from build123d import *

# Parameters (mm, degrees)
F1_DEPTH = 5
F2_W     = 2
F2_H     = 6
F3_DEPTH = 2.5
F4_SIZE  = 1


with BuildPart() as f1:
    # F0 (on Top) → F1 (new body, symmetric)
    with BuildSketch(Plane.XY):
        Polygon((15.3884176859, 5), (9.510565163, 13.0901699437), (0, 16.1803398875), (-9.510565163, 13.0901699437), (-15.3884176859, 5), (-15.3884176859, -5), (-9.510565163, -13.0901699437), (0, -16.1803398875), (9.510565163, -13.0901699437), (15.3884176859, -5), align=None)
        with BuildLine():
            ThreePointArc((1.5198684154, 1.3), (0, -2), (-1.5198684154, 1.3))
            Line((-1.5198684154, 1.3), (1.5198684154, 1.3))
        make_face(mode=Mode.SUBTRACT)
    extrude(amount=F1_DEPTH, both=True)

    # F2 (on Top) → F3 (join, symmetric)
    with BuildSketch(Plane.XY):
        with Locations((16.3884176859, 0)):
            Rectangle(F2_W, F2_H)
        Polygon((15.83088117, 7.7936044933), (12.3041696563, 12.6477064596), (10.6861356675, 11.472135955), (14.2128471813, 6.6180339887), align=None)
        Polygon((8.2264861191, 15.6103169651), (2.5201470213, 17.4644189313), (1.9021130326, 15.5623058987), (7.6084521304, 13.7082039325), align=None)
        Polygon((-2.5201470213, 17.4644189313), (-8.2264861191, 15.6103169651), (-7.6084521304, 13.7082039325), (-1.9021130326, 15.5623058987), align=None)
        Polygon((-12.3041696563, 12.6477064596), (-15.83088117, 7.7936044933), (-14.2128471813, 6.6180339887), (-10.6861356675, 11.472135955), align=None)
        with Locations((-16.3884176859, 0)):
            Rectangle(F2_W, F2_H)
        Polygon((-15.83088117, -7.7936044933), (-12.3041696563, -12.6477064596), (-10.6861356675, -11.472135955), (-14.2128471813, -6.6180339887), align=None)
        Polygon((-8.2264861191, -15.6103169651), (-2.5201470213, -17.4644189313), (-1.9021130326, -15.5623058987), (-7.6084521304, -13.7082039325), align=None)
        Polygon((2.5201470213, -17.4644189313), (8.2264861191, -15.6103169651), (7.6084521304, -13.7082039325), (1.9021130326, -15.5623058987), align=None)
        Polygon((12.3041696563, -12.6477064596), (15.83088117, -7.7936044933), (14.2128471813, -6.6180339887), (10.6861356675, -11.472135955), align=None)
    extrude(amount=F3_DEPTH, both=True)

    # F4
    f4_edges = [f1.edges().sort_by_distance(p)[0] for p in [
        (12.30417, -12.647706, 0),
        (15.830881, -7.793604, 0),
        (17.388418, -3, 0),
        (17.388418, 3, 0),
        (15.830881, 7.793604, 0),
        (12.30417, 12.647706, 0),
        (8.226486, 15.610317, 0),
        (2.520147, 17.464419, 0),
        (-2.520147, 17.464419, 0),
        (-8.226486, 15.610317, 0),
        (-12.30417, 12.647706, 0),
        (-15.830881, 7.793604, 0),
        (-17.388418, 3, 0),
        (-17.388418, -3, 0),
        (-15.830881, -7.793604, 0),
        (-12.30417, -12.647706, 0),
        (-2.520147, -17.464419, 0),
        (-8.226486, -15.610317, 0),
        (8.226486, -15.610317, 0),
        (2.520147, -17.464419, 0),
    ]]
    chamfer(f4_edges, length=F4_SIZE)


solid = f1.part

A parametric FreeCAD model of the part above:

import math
import FreeCAD as App
import Part
import Sketcher

V = App.Vector
Q = App.Units.Quantity


def edges_at(feature, points):
    """Names of the edges that pass closest to the given points."""
    edges = feature.Shape.Edges
    near = lambda p: min(range(len(edges)), key=lambda i: edges[i].distToShape(Part.Vertex(*p))[0])
    return sorted({f"Edge{near(p) + 1}" for p in points})


def add_polygon(sketch, points):
    """Adds a closed chain of lines whose ends are joined by coincident constraints."""
    first, n = sketch.GeometryCount, len(points)
    for a, b in zip(points, points[1:] + points[:1]):
        sketch.addGeometry(Part.LineSegment(App.Vector(*a, 0), App.Vector(*b, 0)), False)
    for i in range(n):
        sketch.addConstraint(Sketcher.Constraint("Coincident", first + i, 2, first + (i + 1) % n, 1))

doc = App.newDocument("Part")
body = doc.addObject("PartDesign::Body", "Body")

sketch1 = body.newObject("Sketcher::SketchObject", "Sketch")
sketch1.AttachmentSupport = (doc.getObject("XY_Plane"), [""])
sketch1.MapMode = "FlatFace"
add_polygon(sketch1, [(15.4, 5), (9.5, 13.1), (0, 16.2), (-9.5, 13.1), (-15.4, 5), (-15.4, -5), (-9.5, -13.1), (0, -16.2), (9.5, -13.1), (15.4, -5)])
sketch1.addGeometry(Part.LineSegment(V(-1.5, 1.3, 0), V(1.5, 1.3, 0)), False)
sketch1.addGeometry(Part.ArcOfCircle(Part.Circle(V(0, 0, 0), V(0, 0, 1), 2), math.radians(139), math.radians(401)), False)
sketch1.addConstraint([
    Sketcher.Constraint("Coincident", 10, 1, 11, 1),
    Sketcher.Constraint("Coincident", 11, 2, 10, 2),
    Sketcher.Constraint("Vertical", 4),
    Sketcher.Constraint("Vertical", 9),
    Sketcher.Constraint("Horizontal", 10),
    Sketcher.Constraint("Coincident", 11, 3, -1, 1),
    Sketcher.Constraint("Symmetric", 0, 2, 5, 2, -1, 1),
    Sketcher.Constraint("Symmetric", 1, 2, 6, 2, -1, 1),
    Sketcher.Constraint("Symmetric", 2, 2, 7, 2, -1, 1),
    Sketcher.Constraint("Symmetric", 3, 2, 8, 2, -1, 1),
    Sketcher.Constraint("Symmetric", 0, 2, 2, 2, -2),
    Sketcher.Constraint("PointOnObject", 1, 2, -2),
    Sketcher.Constraint("Parallel", 0, 5),
    Sketcher.Constraint("Horizontal", 4, 2, 8, 2),
    Sketcher.Constraint("Equal", 0, 1),
    Sketcher.Constraint("Radius", 11, 2.0),
    Sketcher.Constraint("DistanceY", 4, 2, 4, 1, 10.0),
    Sketcher.Constraint("Angle", 0, Q("126 deg")),
    Sketcher.Constraint("Angle", 1, Q("162 deg")),
    Sketcher.Constraint("Distance", 0, 10.0),
    Sketcher.Constraint("DistanceY", -1, 1, 10, 1, 1.3),
])
pad1 = body.newObject("PartDesign::Pad", "Pad")
pad1.Profile = sketch1
pad1.Length = 10
pad1.Midplane = True

sketch2 = body.newObject("Sketcher::SketchObject", "Sketch001")
sketch2.AttachmentSupport = (doc.getObject("XY_Plane"), [""])
sketch2.MapMode = "FlatFace"
add_polygon(sketch2, [(15.4, 3), (15.4, -3), (17.4, -3), (17.4, 3)])
add_polygon(sketch2, [(15.8, 7.8), (12.3, 12.6), (10.7, 11.5), (14.2, 6.6)])
add_polygon(sketch2, [(8.2, 15.6), (2.5, 17.5), (1.9, 15.6), (7.6, 13.7)])
add_polygon(sketch2, [(-2.5, 17.5), (-8.2, 15.6), (-7.6, 13.7), (-1.9, 15.6)])
add_polygon(sketch2, [(-12.3, 12.6), (-15.8, 7.8), (-14.2, 6.6), (-10.7, 11.5)])
add_polygon(sketch2, [(-17.4, 3), (-17.4, -3), (-15.4, -3), (-15.4, 3)])
add_polygon(sketch2, [(-15.8, -7.8), (-12.3, -12.6), (-10.7, -11.5), (-14.2, -6.6)])
add_polygon(sketch2, [(-8.2, -15.6), (-2.5, -17.5), (-1.9, -15.6), (-7.6, -13.7)])
add_polygon(sketch2, [(2.5, -17.5), (8.2, -15.6), (7.6, -13.7), (1.9, -15.6)])
add_polygon(sketch2, [(12.3, -12.6), (15.8, -7.8), (14.2, -6.6), (10.7, -11.5)])
sketch2.addConstraint([
    Sketcher.Constraint("Vertical", 0),
    Sketcher.Constraint("Horizontal", 1),
    Sketcher.Constraint("Vertical", 2),
    Sketcher.Constraint("Horizontal", 3),
    Sketcher.Constraint("Vertical", 20),
    Sketcher.Constraint("Horizontal", 21),
    Sketcher.Constraint("Vertical", 22),
    Sketcher.Constraint("Horizontal", 23),
    Sketcher.Constraint("Symmetric", 2, 2, 20, 2, -1, 1),
    Sketcher.Constraint("Symmetric", 0, 2, 22, 2, -1, 1),
    Sketcher.Constraint("Symmetric", 4, 2, 24, 2, -1, 1),
    Sketcher.Constraint("Symmetric", 5, 2, 25, 2, -1, 1),
    Sketcher.Constraint("Symmetric", 6, 2, 26, 2, -1, 1),
    Sketcher.Constraint("Symmetric", 7, 2, 27, 2, -1, 1),
    Sketcher.Constraint("Symmetric", 8, 2, 28, 2, -1, 1),
    Sketcher.Constraint("Symmetric", 9, 2, 29, 2, -1, 1),
    Sketcher.Constraint("Symmetric", 10, 2, 30, 2, -1, 1),
    Sketcher.Constraint("Symmetric", 11, 2, 31, 2, -1, 1),
    Sketcher.Constraint("Symmetric", 12, 2, 32, 2, -1, 1),
    Sketcher.Constraint("Symmetric", 13, 2, 33, 2, -1, 1),
    Sketcher.Constraint("Symmetric", 14, 2, 34, 2, -1, 1),
    Sketcher.Constraint("Symmetric", 15, 2, 35, 2, -1, 1),
    Sketcher.Constraint("Symmetric", 16, 2, 36, 2, -1, 1),
    Sketcher.Constraint("Symmetric", 17, 2, 37, 2, -1, 1),
    Sketcher.Constraint("Symmetric", 18, 2, 38, 2, -1, 1),
    Sketcher.Constraint("Symmetric", 19, 2, 39, 2, -1, 1),
    Sketcher.Constraint("Symmetric", 11, 2, 12, 2, -2),
    Sketcher.Constraint("Symmetric", 10, 2, 13, 2, -2),
    Sketcher.Constraint("Symmetric", 9, 2, 14, 2, -2),
    Sketcher.Constraint("Symmetric", 8, 2, 15, 2, -2),
    Sketcher.Constraint("Symmetric", 7, 2, 16, 2, -2),
    Sketcher.Constraint("Symmetric", 6, 2, 17, 2, -2),
    Sketcher.Constraint("Symmetric", 5, 2, 18, 2, -2),
    Sketcher.Constraint("Symmetric", 4, 2, 19, 2, -2),
    Sketcher.Constraint("Perpendicular", 4, 5),
    Sketcher.Constraint("Perpendicular", 5, 6),
    Sketcher.Constraint("Perpendicular", 6, 7),
    Sketcher.Constraint("Perpendicular", 8, 9),
    Sketcher.Constraint("Perpendicular", 9, 10),
    Sketcher.Constraint("Perpendicular", 10, 11),
    Sketcher.Constraint("Horizontal", 1, 2, 20, 2),
    Sketcher.Constraint("Equal", 6, 8),
    Sketcher.Constraint("Equal", 7, 9),
    Sketcher.Constraint("DistanceX", 1, 1, 1, 2, 2.0),
    Sketcher.Constraint("DistanceY", 0, 2, 0, 1, 6.0),
    Sketcher.Constraint("Angle", 4, Q("126 deg")),
    Sketcher.Constraint("Angle", 8, Q("162 deg")),
    Sketcher.Constraint("Distance", 4, 6.0),
    Sketcher.Constraint("Distance", 5, 2.0),
    Sketcher.Constraint("DistanceX", 8, 2, 6, 2, 11.6927),
    Sketcher.Constraint("DistanceY", 4, 2, 9, 2, 2.914599),
    Sketcher.Constraint("DistanceX", 12, 2, 9, 2, 10.128599),
    Sketcher.Constraint("DistanceY", -1, 1, 8, 2, 17.464419),
    Sketcher.Constraint("DistanceX", 4, 2, 3, 2, 3.084248),
])
pad2 = body.newObject("PartDesign::Pad", "Pad001")
pad2.Profile = sketch2
pad2.Length = 5
pad2.Midplane = True
doc.recompute()

chamfer = body.newObject("PartDesign::Chamfer", "Chamfer")
chamfer.Base = (pad2, edges_at(pad2, [
    (12.304, -12.648, 0),
    (15.831, -7.794, 0),
    (17.388, -3, 0),
    (17.388, 3, 0),
    (15.831, 7.794, 0),
    (12.304, 12.648, 0),
    (8.226, 15.61, 0),
    (2.52, 17.464, 0),
    (-2.52, 17.464, 0),
    (-8.226, 15.61, 0),
    (-12.304, 12.648, 0),
    (-15.831, 7.794, 0),
    (-17.388, 3, 0),
    (-17.388, -3, 0),
    (-15.831, -7.794, 0),
    (-12.304, -12.648, 0),
    (-2.52, -17.464, 0),
    (-8.226, -15.61, 0),
    (8.226, -15.61, 0),
    (2.52, -17.464, 0),
]))
chamfer.Size = 1

doc.recompute()
